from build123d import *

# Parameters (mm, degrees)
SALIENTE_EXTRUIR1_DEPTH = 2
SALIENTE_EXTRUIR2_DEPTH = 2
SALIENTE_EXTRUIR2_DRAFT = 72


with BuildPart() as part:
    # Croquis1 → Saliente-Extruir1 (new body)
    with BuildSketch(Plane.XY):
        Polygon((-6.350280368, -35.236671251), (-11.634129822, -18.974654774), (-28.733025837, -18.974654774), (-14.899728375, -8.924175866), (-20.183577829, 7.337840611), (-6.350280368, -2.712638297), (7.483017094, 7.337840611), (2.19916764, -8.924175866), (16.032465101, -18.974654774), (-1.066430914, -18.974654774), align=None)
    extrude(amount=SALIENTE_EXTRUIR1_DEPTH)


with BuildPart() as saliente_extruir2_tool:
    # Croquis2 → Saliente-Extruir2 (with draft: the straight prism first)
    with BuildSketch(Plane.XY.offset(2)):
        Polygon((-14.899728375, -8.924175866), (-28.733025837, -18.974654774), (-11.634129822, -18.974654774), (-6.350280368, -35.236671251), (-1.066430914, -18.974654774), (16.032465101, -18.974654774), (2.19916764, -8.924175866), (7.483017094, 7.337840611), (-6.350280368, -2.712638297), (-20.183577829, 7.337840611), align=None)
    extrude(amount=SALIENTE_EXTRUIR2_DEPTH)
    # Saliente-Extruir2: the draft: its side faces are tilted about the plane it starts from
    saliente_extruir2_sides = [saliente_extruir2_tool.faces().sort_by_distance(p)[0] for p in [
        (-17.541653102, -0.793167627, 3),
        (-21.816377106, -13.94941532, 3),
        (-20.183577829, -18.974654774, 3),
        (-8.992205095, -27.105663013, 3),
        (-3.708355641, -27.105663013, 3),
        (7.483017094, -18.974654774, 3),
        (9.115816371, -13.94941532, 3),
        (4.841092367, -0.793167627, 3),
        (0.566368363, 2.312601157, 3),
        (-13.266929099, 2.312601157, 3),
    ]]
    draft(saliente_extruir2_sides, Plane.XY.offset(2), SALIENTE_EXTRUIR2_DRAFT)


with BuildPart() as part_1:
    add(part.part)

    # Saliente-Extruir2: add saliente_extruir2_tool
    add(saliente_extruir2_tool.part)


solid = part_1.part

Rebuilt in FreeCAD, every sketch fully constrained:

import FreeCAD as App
import Part
import Sketcher

V = App.Vector
Q = App.Units.Quantity


def faces_at(feature, points):
    """Names of the faces that lie closest to the given points."""
    faces = feature.Shape.Faces
    near = lambda p: min(range(len(faces)), key=lambda i: faces[i].distToShape(Part.Vertex(*p))[0])
    return sorted({f"Face{near(p) + 1}" for p in points})

doc = App.newDocument("Part")
params = doc.addObject("Spreadsheet::Sheet", "Params")
for row, (alias, value) in enumerate([
    ("pad1_length", "2 mm"),
    ("pad2_length", "2 mm"),
    ("draft_angle", "72 deg"),
], start=1):
    params.set(f"A{row}", alias)
    params.set(f"B{row}", "=" + value)
    params.setAlias(f"B{row}", alias)

body = doc.addObject("PartDesign::Body", "Body")

sketch1 = body.newObject("Sketcher::SketchObject", "Sketch")
sketch1.AttachmentSupport = (doc.getObject("XY_Plane"), [""])
sketch1.MapMode = "FlatFace"
sketch1.addGeometry(Part.LineSegment(V(-11.63413, -18.974655, 0), V(-6.35028, -35.236671, 0)), False)
sketch1.addGeometry(Part.LineSegment(V(-6.35028, -35.236671, 0), V(-1.066431, -18.974655, 0)), False)
sketch1.addGeometry(Part.LineSegment(V(-1.066431, -18.974655, 0), V(16.032465, -18.974655, 0)), False)
sketch1.addGeometry(Part.LineSegment(V(16.032465, -18.974655, 0), V(2.199168, -8.924176, 0)), False)
sketch1.addGeometry(Part.LineSegment(V(2.199168, -8.924176, 0), V(7.483017, 7.337841, 0)), False)
sketch1.addGeometry(Part.LineSegment(V(7.483017, 7.337841, 0), V(-6.35028, -2.712638, 0)), False)
sketch1.addGeometry(Part.LineSegment(V(-6.35028, -2.712638, 0), V(-20.183578, 7.337841, 0)), False)
sketch1.addGeometry(Part.LineSegment(V(-20.183578, 7.337841, 0), V(-14.899728, -8.924176, 0)), False)
sketch1.addGeometry(Part.LineSegment(V(-14.899728, -8.924176, 0), V(-28.733026, -18.974655, 0)), False)
sketch1.addGeometry(Part.LineSegment(V(-28.733026, -18.974655, 0), V(-11.63413, -18.974655, 0)), False)
sketch1.addConstraint(Sketcher.Constraint("Coincident", 0, 2, 1, 1))
sketch1.addConstraint(Sketcher.Constraint("Coincident", 1, 2, 2, 1))
sketch1.addConstraint(Sketcher.Constraint("Coincident", 2, 2, 3, 1))
sketch1.addConstraint(Sketcher.Constraint("Coincident", 3, 2, 4, 1))
sketch1.addConstraint(Sketcher.Constraint("Coincident", 4, 2, 5, 1))
sketch1.addConstraint(Sketcher.Constraint("Coincident", 5, 2, 6, 1))
sketch1.addConstraint(Sketcher.Constraint("Coincident", 6, 2, 7, 1))
sketch1.addConstraint(Sketcher.Constraint("Coincident", 7, 2, 8, 1))
sketch1.addConstraint(Sketcher.Constraint("Coincident", 8, 2, 9, 1))
sketch1.addConstraint(Sketcher.Constraint("Coincident", 9, 2, 0, 1))
sketch1.addConstraint(Sketcher.Constraint("Horizontal", 2))
sketch1.addConstraint(Sketcher.Constraint("Horizontal", 9))
sketch1.addConstraint(Sketcher.Constraint("Parallel", 1, 4))
sketch1.addConstraint(Sketcher.Constraint("Parallel", 3, 6))
sketch1.addConstraint(Sketcher.Constraint("Parallel", 0, 7))
sketch1.addConstraint(Sketcher.Constraint("Parallel", 5, 8))
sketch1.addConstraint(Sketcher.Constraint("Horizontal", 4, 2, 6, 2))
sketch1.addConstraint(Sketcher.Constraint("Horizontal", 3, 2, 7, 2))
sketch1.addConstraint(Sketcher.Constraint("Horizontal", 2, 2, 8, 2))
sketch1.addConstraint(Sketcher.Constraint("Vertical", 0, 2, 5, 2))
sketch1.addConstraint(Sketcher.Constraint("Equal", 2, 9))
sketch1.addConstraint(Sketcher.Constraint("Equal", 1, 3))
sketch1.addConstraint(Sketcher.Constraint("Equal", 3, 4))
sketch1.addConstraint(Sketcher.Constraint("Equal", 4, 5))
sketch1.addConstraint(Sketcher.Constraint("Equal", 5, 6))
sketch1.addConstraint(Sketcher.Constraint("Angle", 0, Q("-72 deg")))
sketch1.addConstraint(Sketcher.Constraint("Angle", 3, Q("144 deg")))
sketch1.addConstraint(Sketcher.Constraint("DistanceX", 1, 2, 3, 2, Q("3.265599 mm")))
sketch1.addConstraint(Sketcher.Constraint("DistanceX", 0, 2, -1, 1, Q("6.35028 mm")))
sketch1.addConstraint(Sketcher.Constraint("DistanceY", 0, 2, -1, 1, Q("35.236671 mm")))
pad1 = body.newObject("PartDesign::Pad", "Pad")
pad1.Profile = sketch1
pad1.setExpression("Length", "Params.pad1_length")
body2 = doc.addObject("PartDesign::Body", "Body001")

sketch2 = body2.newObject("Sketcher::SketchObject", "Sketch001")
sketch2.AttachmentSupport = (doc.getObject("XY_Plane001"), [""])
sketch2.MapMode = "FlatFace"
sketch2.AttachmentOffset = App.Placement(V(0, 0, 2), App.Rotation())
sketch2.addGeometry(Part.LineSegment(V(-14.899728, -8.924176, 0), V(-28.733026, -18.974655, 0)), False)
sketch2.addGeometry(Part.LineSegment(V(-28.733026, -18.974655, 0), V(-11.63413, -18.974655, 0)), False)
sketch2.addGeometry(Part.LineSegment(V(-11.63413, -18.974655, 0), V(-6.35028, -35.236671, 0)), False)
sketch2.addGeometry(Part.LineSegment(V(-6.35028, -35.236671, 0), V(-1.066431, -18.974655, 0)), False)
sketch2.addGeometry(Part.LineSegment(V(-1.066431, -18.974655, 0), V(16.032465, -18.974655, 0)), False)
sketch2.addGeometry(Part.LineSegment(V(16.032465, -18.974655, 0), V(2.199168, -8.924176, 0)), False)
sketch2.addGeometry(Part.LineSegment(V(2.199168, -8.924176, 0), V(7.483017, 7.337841, 0)), False)
sketch2.addGeometry(Part.LineSegment(V(7.483017, 7.337841, 0), V(-6.35028, -2.712638, 0)), False)
sketch2.addGeometry(Part.LineSegment(V(-6.35028, -2.712638, 0), V(-20.183578, 7.337841, 0)), False)
sketch2.addGeometry(Part.LineSegment(V(-20.183578, 7.337841, 0), V(-14.899728, -8.924176, 0)), False)
sketch2.addConstraint(Sketcher.Constraint("Coincident", 0, 2, 1, 1))
sketch2.addConstraint(Sketcher.Constraint("Coincident", 1, 2, 2, 1))
sketch2.addConstraint(Sketcher.Constraint("Coincident", 2, 2, 3, 1))
sketch2.addConstraint(Sketcher.Constraint("Coincident", 3, 2, 4, 1))
sketch2.addConstraint(Sketcher.Constraint("Coincident", 4, 2, 5, 1))
sketch2.addConstraint(Sketcher.Constraint("Coincident", 5, 2, 6, 1))
sketch2.addConstraint(Sketcher.Constraint("Coincident", 6, 2, 7, 1))
sketch2.addConstraint(Sketcher.Constraint("Coincident", 7, 2, 8, 1))
sketch2.addConstraint(Sketcher.Constraint("Coincident", 8, 2, 9, 1))
sketch2.addConstraint(Sketcher.Constraint("Coincident", 9, 2, 0, 1))
sketch2.addConstraint(Sketcher.Constraint("Horizontal", 1))
sketch2.addConstraint(Sketcher.Constraint("Horizontal", 4))
sketch2.addConstraint(Sketcher.Constraint("Parallel", 3, 6))
sketch2.addConstraint(Sketcher.Constraint("Parallel", 0, 7))
sketch2.addConstraint(Sketcher.Constraint("Parallel", 5, 8))
sketch2.addConstraint(Sketcher.Constraint("Parallel", 2, 9))
sketch2.addConstraint(Sketcher.Constraint("Horizontal", 1, 2, 3, 2))
sketch2.addConstraint(Sketcher.Constraint("Horizontal", 6, 2, 8, 2))
sketch2.addConstraint(Sketcher.Constraint("Horizontal", 5, 2, 9, 2))
sketch2.addConstraint(Sketcher.Constraint("Vertical", 2, 2, 7, 2))
sketch2.addConstraint(Sketcher.Constraint("Equal", 1, 4))
sketch2.addConstraint(Sketcher.Constraint("Equal", 0, 2))
sketch2.addConstraint(Sketcher.Constraint("Equal", 3, 5))
sketch2.addConstraint(Sketcher.Constraint("Equal", 5, 6))
sketch2.addConstraint(Sketcher.Constraint("Equal", 6, 7))
sketch2.addConstraint(Sketcher.Constraint("Angle", 0, Q("-144 deg")))
sketch2.addConstraint(Sketcher.Constraint("Angle", 2, Q("-72 deg")))
sketch2.addConstraint(Sketcher.Constraint("DistanceX", 1, 2, 3, 2, Q("10.567699 mm")))
sketch2.addConstraint(Sketcher.Constraint("DistanceX", 1, 2, -1, 1, Q("11.63413 mm")))
sketch2.addConstraint(Sketcher.Constraint("DistanceY", 2, 2, -1, 1, Q("35.236671 mm")))
pad2 = body2.newObject("PartDesign::Pad", "Pad001")
pad2.Profile = sketch2
pad2.setExpression("Length", "Params.pad2_length")
doc.recompute()

datumplane = body2.newObject("PartDesign::Plane", "DatumPlane")
datumplane.AttachmentSupport = (doc.getObject("XY_Plane001"), [""])
datumplane.MapMode = "FlatFace"
datumplane.AttachmentOffset = App.Placement(V(0, 0, 2), App.Rotation())
draft = body2.newObject("PartDesign::Draft", "Draft")
draft.Base = (pad2, faces_at(pad2, [
    (-17.542, -0.793, 3),
    (-21.816, -13.949, 3),
    (-20.184, -18.975, 3),
    (-8.992, -27.106, 3),
    (-3.708, -27.106, 3),
    (7.483, -18.975, 3),
    (9.116, -13.949, 3),
    (4.841, -0.793, 3),
    (0.566, 2.313, 3),
    (-13.267, 2.313, 3),
]))
draft.NeutralPlane = (datumplane, [""])
draft.setExpression("Angle", "Params.draft_angle")
draft.Reversed = False
doc.recompute()

boolean = body.newObject("PartDesign::Boolean", "Boolean")
boolean.Type = "Fuse"
boolean.addObjects([body2])

doc.recompute()
